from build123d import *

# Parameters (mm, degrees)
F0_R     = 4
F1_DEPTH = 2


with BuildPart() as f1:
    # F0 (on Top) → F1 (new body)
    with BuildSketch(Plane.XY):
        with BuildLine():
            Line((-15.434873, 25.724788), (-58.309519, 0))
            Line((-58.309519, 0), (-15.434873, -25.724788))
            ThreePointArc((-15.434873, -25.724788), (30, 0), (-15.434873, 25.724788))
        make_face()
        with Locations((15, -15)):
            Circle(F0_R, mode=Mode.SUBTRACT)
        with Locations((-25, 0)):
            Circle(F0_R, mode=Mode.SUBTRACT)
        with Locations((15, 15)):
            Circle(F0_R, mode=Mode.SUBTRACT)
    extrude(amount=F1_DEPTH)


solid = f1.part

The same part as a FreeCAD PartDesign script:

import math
import FreeCAD as App
import Part
import Sketcher

V = App.Vector

doc = App.newDocument("Part")
params = doc.addObject("Spreadsheet::Sheet", "Params")
for row, (alias, value) in enumerate([
    ("sketch1_diameter", "8 mm"),
    ("sketch1_radius", "30 mm"),
    ("sketch1_length", "50 mm"),
    ("pad1_length", "2 mm"),
], start=1):
    params.set(f"A{row}", alias)
    params.set(f"B{row}", "=" + value)
    params.setAlias(f"B{row}", alias)

body = doc.addObject("PartDesign::Body", "Body")

# Sketch on XY plane
sketch1 = body.newObject("Sketcher::SketchObject", "Sketch")
sketch1.AttachmentSupport = (doc.getObject("XY_Plane"), [""])
sketch1.MapMode = "FlatFace"
sketch1.addGeometry(Part.LineSegment(V(-15.434873, 25.724788, 0), V(-58.309519, 0, 0)), False)
sketch1.addGeometry(Part.LineSegment(V(-58.309519, 0, 0), V(-15.434873, -25.724788, 0)), False)
sketch1.addGeometry(Part.ArcOfCircle(Part.Circle(V(0, 0, 0), V(0, 0, 1), 30), math.radians(-120.963756), math.radians(120.963756)), False)
sketch1.addGeometry(Part.Circle(V(15, -15, 0), V(0, 0, 1), 4), False)
sketch1.addGeometry(Part.Circle(V(-25, 0, 0), V(0, 0, 1), 4), False)
sketch1.addGeometry(Part.Circle(V(15, 15, 0), V(0, 0, 1), 4), False)
sketch1.addConstraint(Sketcher.Constraint("Coincident", 0, 2, 1, 1))
sketch1.addConstraint(Sketcher.Constraint("Tangent", 1, 2, 2, 1))
sketch1.addConstraint(Sketcher.Constraint("Tangent", 2, 2, 0, 1))
sketch1.addConstraint(Sketcher.Constraint("Coincident", 2, 3, -1, 1))
sketch1.addConstraint(Sketcher.Constraint("Equal", 3, 4))
sketch1.addConstraint(Sketcher.Constraint("Equal", 4, 5))
sketch1.addConstraint(Sketcher.Constraint("Symmetric", 3, 3, 5, 3, -1))
sketch1.addConstraint(Sketcher.Constraint("PointOnObject", 4, 3, -1))
sketch1.addConstraint(Sketcher.Constraint("PointOnObject", 0, 2, -1))
sketch1.addConstraint(Sketcher.Constraint("Diameter", 3, 8.0))
sketch1.addConstraint(Sketcher.Constraint("Radius", 2, 30.0))
sketch1.addConstraint(Sketcher.Constraint("Distance", 0, 50.0))
sketch1.addConstraint(Sketcher.Constraint("DistanceX", -1, 1, 3, 3, 15.0))
sketch1.addConstraint(Sketcher.Constraint("DistanceY", 3, 3, -1, 1, 15.0))
sketch1.addConstraint(Sketcher.Constraint("DistanceX", 4, 3, -1, 1, 25.0))
sketch1.setExpression("Constraints[9]", "Params.sketch1_diameter")
sketch1.setExpression("Constraints[10]", "Params.sketch1_radius")
sketch1.setExpression("Constraints[11]", "Params.sketch1_length")
pad1 = body.newObject("PartDesign::Pad", "Pad")
pad1.Profile = sketch1
pad1.setExpression("Length", "Params.pad1_length")

doc.recompute()
